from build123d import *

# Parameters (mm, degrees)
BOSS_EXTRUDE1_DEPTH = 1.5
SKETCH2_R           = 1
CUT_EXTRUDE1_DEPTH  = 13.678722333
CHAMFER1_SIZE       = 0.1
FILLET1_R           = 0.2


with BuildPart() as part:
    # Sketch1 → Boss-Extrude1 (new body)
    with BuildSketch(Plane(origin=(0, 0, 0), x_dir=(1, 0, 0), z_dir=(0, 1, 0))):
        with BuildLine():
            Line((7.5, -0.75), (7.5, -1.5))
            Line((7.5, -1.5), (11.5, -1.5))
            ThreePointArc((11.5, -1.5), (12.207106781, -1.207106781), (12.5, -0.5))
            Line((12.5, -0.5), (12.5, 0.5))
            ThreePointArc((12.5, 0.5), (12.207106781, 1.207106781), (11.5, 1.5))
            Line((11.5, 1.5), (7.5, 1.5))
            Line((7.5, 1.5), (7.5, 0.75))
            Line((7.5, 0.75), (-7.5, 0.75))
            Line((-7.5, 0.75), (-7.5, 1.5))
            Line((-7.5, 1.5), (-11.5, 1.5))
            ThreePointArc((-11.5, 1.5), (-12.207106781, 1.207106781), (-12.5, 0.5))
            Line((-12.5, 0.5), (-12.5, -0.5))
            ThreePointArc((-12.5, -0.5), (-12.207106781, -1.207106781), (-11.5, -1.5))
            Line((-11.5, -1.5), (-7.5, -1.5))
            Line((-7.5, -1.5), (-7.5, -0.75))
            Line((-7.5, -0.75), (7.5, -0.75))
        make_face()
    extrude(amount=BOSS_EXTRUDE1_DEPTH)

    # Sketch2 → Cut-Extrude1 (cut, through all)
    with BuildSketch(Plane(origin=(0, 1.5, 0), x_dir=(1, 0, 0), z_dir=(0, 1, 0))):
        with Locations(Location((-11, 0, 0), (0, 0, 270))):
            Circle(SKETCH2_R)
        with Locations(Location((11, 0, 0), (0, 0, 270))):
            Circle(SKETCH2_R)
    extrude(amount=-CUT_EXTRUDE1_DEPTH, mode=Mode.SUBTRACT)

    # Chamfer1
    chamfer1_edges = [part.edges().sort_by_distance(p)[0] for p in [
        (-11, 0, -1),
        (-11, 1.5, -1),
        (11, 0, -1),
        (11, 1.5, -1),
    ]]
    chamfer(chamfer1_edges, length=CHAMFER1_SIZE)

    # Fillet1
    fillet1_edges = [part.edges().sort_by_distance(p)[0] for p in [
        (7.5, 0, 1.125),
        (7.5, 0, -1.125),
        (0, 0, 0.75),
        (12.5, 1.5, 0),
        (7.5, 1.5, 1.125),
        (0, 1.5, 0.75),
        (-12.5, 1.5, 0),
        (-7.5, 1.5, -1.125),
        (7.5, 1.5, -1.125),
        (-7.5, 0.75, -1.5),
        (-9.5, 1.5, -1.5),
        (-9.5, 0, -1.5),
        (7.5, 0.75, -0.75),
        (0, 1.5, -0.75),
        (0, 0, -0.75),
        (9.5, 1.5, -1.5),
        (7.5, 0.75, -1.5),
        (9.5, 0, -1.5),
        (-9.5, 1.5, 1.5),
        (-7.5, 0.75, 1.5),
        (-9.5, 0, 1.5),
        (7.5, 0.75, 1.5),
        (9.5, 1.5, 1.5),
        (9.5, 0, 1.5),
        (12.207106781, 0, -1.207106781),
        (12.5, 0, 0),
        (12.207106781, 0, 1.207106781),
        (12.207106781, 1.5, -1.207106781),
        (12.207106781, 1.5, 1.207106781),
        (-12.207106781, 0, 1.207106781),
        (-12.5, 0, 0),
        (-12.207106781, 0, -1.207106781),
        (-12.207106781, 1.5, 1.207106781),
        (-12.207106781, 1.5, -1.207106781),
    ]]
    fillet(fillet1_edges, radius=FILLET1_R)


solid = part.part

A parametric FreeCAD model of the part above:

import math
import FreeCAD as App
import Part
import Sketcher

V = App.Vector


def edges_at(feature, points):
    """Names of the edges that pass closest to the given points."""
    edges = feature.Shape.Edges
    near = lambda p: min(range(len(edges)), key=lambda i: edges[i].distToShape(Part.Vertex(*p))[0])
    return sorted({f"Edge{near(p) + 1}" for p in points})

doc = App.newDocument("Part")
body = doc.addObject("PartDesign::Body", "Body")

# Sketch on XZ plane
sketch1 = doc.addObject("Sketcher::SketchObject", "Sketch")
body.addObject(sketch1)
sketch1.AttachmentSupport = (doc.XZ_Plane, [""])
sketch1.MapMode = "FlatFace"
sketch1.addGeometry(Part.LineSegment(V(7.5, 0.8, 0), V(7.5, 1.5, 0)), False)
sketch1.addGeometry(Part.LineSegment(V(7.5, 1.5, 0), V(11.5, 1.5, 0)), False)
sketch1.addGeometry(Part.ArcOfCircle(Part.Circle(V(11.5, 0.5, 0), V(0, 0, 1), 1), math.radians(0), math.radians(90)), False)
sketch1.addGeometry(Part.LineSegment(V(12.5, 0.5, 0), V(12.5, -0.5, 0)), False)
sketch1.addGeometry(Part.ArcOfCircle(Part.Circle(V(11.5, -0.5, 0), V(0, 0, 1), 1), math.radians(-90), math.radians(0)), False)
sketch1.addGeometry(Part.LineSegment(V(11.5, -1.5, 0), V(7.5, -1.5, 0)), False)
sketch1.addGeometry(Part.LineSegment(V(7.5, -1.5, 0), V(7.5, -0.8, 0)), False)
sketch1.addGeometry(Part.LineSegment(V(7.5, -0.8, 0), V(-7.5, -0.8, 0)), False)
sketch1.addGeometry(Part.LineSegment(V(-7.5, -0.8, 0), V(-7.5, -1.5, 0)), False)
sketch1.addGeometry(Part.LineSegment(V(-7.5, -1.5, 0), V(-11.5, -1.5, 0)), False)
sketch1.addGeometry(Part.ArcOfCircle(Part.Circle(V(-11.5, -0.5, 0), V(0, 0, 1), 1), math.radians(-180), math.radians(-90)), False)
sketch1.addGeometry(Part.LineSegment(V(-12.5, -0.5, 0), V(-12.5, 0.5, 0)), False)
sketch1.addGeometry(Part.ArcOfCircle(Part.Circle(V(-11.5, 0.5, 0), V(0, 0, 1), 1), math.radians(90), math.radians(180)), False)
sketch1.addGeometry(Part.LineSegment(V(-11.5, 1.5, 0), V(-7.5, 1.5, 0)), False)
sketch1.addGeometry(Part.LineSegment(V(-7.5, 1.5, 0), V(-7.5, 0.8, 0)), False)
sketch1.addGeometry(Part.LineSegment(V(-7.5, 0.8, 0), V(7.5, 0.8, 0)), False)
sketch1.addConstraint(Sketcher.Constraint("Coincident", 0, 2, 1, 1))
sketch1.addConstraint(Sketcher.Constraint("Tangent", 1, 2, 2, 2))
sketch1.addConstraint(Sketcher.Constraint("Tangent", 2, 1, 3, 1))
sketch1.addConstraint(Sketcher.Constraint("Tangent", 3, 2, 4, 2))
sketch1.addConstraint(Sketcher.Constraint("Tangent", 4, 1, 5, 1))
sketch1.addConstraint(Sketcher.Constraint("Coincident", 5, 2, 6, 1))
sketch1.addConstraint(Sketcher.Constraint("Coincident", 6, 2, 7, 1))
sketch1.addConstraint(Sketcher.Constraint("Coincident", 7, 2, 8, 1))
sketch1.addConstraint(Sketcher.Constraint("Coincident", 8, 2, 9, 1))
sketch1.addConstraint(Sketcher.Constraint("Tangent", 9, 2, 10, 2))
sketch1.addConstraint(Sketcher.Constraint("Tangent", 10, 1, 11, 1))
sketch1.addConstraint(Sketcher.Constraint("Tangent", 11, 2, 12, 2))
sketch1.addConstraint(Sketcher.Constraint("Tangent", 12, 1, 13, 1))
sketch1.addConstraint(Sketcher.Constraint("Coincident", 13, 2, 14, 1))
sketch1.addConstraint(Sketcher.Constraint("Coincident", 14, 2, 15, 1))
sketch1.addConstraint(Sketcher.Constraint("Coincident", 15, 2, 0, 1))
sketch1.addConstraint(Sketcher.Constraint("Vertical", 0))
sketch1.addConstraint(Sketcher.Constraint("Horizontal", 1))
sketch1.addConstraint(Sketcher.Constraint("Vertical", 3))
sketch1.addConstraint(Sketcher.Constraint("Horizontal", 5))
sketch1.addConstraint(Sketcher.Constraint("Vertical", 6))
sketch1.addConstraint(Sketcher.Constraint("Horizontal", 7))
sketch1.addConstraint(Sketcher.Constraint("Vertical", 8))
sketch1.addConstraint(Sketcher.Constraint("Horizontal", 9))
sketch1.addConstraint(Sketcher.Constraint("Vertical", 11))
sketch1.addConstraint(Sketcher.Constraint("Horizontal", 13))
sketch1.addConstraint(Sketcher.Constraint("Vertical", 14))
sketch1.addConstraint(Sketcher.Constraint("Horizontal", 15))
sketch1.addConstraint(Sketcher.Constraint("Equal", 2, 4))
sketch1.addConstraint(Sketcher.Constraint("Equal", 4, 10))
sketch1.addConstraint(Sketcher.Constraint("Equal", 10, 12))
sketch1.addConstraint(Sketcher.Constraint("Symmetric", 2, 3, 10, 3, -1, 1))
sketch1.addConstraint(Sketcher.Constraint("Symmetric", 5, 2, 13, 2, -1, 1))
sketch1.addConstraint(Sketcher.Constraint("Symmetric", 7, 2, 15, 2, -1, 1))
sketch1.addConstraint(Sketcher.Constraint("Symmetric", 5, 2, 8, 2, -2))
sketch1.addConstraint(Sketcher.Constraint("Radius", 2, 1.0))
sketch1.addConstraint(Sketcher.Constraint("DistanceX", 1, 1, 1, 2, 4.0))
sketch1.addConstraint(Sketcher.Constraint("DistanceX", 7, 2, 7, 1, 15.0))
sketch1.addConstraint(Sketcher.Constraint("DistanceY", 3, 2, 3, 1, 1.0))
sketch1.addConstraint(Sketcher.Constraint("DistanceY", 0, 1, 0, 2, 0.75))
pad1 = doc.addObject("PartDesign::Pad", "Pad")
body.addObject(pad1)
pad1.Profile = sketch1
pad1.Length = 1.5
pad1.Reversed = True

# Sketch on XZ plane
sketch2 = doc.addObject("Sketcher::SketchObject", "Sketch001")
body.addObject(sketch2)
sketch2.AttachmentSupport = (doc.XZ_Plane, [""])
sketch2.MapMode = "FlatFace"
sketch2.AttachmentOffset = App.Placement(V(0, 0, -1.5), App.Rotation())
sketch2.addGeometry(Part.Circle(V(-11, 0, 0), V(0, 0, 1), 1), False)
sketch2.addGeometry(Part.Circle(V(11, 0, 0), V(0, 0, 1), 1), False)
sketch2.addConstraint(Sketcher.Constraint("Equal", 0, 1))
sketch2.addConstraint(Sketcher.Constraint("Symmetric", 0, 3, 1, 3, -1, 1))
sketch2.addConstraint(Sketcher.Constraint("PointOnObject", 0, 3, -1))
sketch2.addConstraint(Sketcher.Constraint("Diameter", 0, 2.0))
sketch2.addConstraint(Sketcher.Constraint("DistanceX", 0, 3, -1, 1, 11.0))
pocket1 = doc.addObject("PartDesign::Pocket", "Pocket")
body.addObject(pocket1)
pocket1.Profile = sketch2
pocket1.Type = "ThroughAll"
pocket1.Reversed = True
doc.recompute()

chamfer = doc.addObject("PartDesign::Chamfer", "Chamfer")
body.addObject(chamfer)
chamfer.Base = (pocket1, edges_at(pocket1, [
    (-11, 0, -1),
    (-11, 1.5, -1),
    (11, 0, -1),
    (11, 1.5, -1),
]))
chamfer.Size = 0.1
doc.recompute()

fillet = doc.addObject("PartDesign::Fillet", "Fillet")
body.addObject(fillet)
fillet.Base = (chamfer, edges_at(chamfer, [
    (7.5, 0, 1.125),
    (7.5, 0, -1.125),
    (0, 0, 0.75),
    (12.5, 1.5, 0),
    (7.5, 1.5, 1.125),
    (0, 1.5, 0.75),
    (-12.5, 1.5, 0),
    (-7.5, 1.5, -1.125),
    (7.5, 1.5, -1.125),
    (-7.5, 0.75, -1.5),
    (-9.5, 1.5, -1.5),
    (-9.5, 0, -1.5),
    (7.5, 0.75, -0.75),
    (0, 1.5, -0.75),
    (0, 0, -0.75),
    (9.5, 1.5, -1.5),
    (7.5, 0.75, -1.5),
    (9.5, 0, -1.5),
    (-9.5, 1.5, 1.5),
    (-7.5, 0.75, 1.5),
    (-9.5, 0, 1.5),
    (7.5, 0.75, 1.5),
    (9.5, 1.5, 1.5),
    (9.5, 0, 1.5),
    (12.207, 0, -1.207),
    (12.5, 0, 0),
    (12.207, 0, 1.207),
    (12.207, 1.5, -1.207),
    (12.207, 1.5, 1.207),
    (-12.207, 0, 1.207),
    (-12.5, 0, 0),
    (-12.207, 0, -1.207),
    (-12.207, 1.5, 1.207),
    (-12.207, 1.5, -1.207),
]))
fillet.Radius = 0.2

doc.recompute()
